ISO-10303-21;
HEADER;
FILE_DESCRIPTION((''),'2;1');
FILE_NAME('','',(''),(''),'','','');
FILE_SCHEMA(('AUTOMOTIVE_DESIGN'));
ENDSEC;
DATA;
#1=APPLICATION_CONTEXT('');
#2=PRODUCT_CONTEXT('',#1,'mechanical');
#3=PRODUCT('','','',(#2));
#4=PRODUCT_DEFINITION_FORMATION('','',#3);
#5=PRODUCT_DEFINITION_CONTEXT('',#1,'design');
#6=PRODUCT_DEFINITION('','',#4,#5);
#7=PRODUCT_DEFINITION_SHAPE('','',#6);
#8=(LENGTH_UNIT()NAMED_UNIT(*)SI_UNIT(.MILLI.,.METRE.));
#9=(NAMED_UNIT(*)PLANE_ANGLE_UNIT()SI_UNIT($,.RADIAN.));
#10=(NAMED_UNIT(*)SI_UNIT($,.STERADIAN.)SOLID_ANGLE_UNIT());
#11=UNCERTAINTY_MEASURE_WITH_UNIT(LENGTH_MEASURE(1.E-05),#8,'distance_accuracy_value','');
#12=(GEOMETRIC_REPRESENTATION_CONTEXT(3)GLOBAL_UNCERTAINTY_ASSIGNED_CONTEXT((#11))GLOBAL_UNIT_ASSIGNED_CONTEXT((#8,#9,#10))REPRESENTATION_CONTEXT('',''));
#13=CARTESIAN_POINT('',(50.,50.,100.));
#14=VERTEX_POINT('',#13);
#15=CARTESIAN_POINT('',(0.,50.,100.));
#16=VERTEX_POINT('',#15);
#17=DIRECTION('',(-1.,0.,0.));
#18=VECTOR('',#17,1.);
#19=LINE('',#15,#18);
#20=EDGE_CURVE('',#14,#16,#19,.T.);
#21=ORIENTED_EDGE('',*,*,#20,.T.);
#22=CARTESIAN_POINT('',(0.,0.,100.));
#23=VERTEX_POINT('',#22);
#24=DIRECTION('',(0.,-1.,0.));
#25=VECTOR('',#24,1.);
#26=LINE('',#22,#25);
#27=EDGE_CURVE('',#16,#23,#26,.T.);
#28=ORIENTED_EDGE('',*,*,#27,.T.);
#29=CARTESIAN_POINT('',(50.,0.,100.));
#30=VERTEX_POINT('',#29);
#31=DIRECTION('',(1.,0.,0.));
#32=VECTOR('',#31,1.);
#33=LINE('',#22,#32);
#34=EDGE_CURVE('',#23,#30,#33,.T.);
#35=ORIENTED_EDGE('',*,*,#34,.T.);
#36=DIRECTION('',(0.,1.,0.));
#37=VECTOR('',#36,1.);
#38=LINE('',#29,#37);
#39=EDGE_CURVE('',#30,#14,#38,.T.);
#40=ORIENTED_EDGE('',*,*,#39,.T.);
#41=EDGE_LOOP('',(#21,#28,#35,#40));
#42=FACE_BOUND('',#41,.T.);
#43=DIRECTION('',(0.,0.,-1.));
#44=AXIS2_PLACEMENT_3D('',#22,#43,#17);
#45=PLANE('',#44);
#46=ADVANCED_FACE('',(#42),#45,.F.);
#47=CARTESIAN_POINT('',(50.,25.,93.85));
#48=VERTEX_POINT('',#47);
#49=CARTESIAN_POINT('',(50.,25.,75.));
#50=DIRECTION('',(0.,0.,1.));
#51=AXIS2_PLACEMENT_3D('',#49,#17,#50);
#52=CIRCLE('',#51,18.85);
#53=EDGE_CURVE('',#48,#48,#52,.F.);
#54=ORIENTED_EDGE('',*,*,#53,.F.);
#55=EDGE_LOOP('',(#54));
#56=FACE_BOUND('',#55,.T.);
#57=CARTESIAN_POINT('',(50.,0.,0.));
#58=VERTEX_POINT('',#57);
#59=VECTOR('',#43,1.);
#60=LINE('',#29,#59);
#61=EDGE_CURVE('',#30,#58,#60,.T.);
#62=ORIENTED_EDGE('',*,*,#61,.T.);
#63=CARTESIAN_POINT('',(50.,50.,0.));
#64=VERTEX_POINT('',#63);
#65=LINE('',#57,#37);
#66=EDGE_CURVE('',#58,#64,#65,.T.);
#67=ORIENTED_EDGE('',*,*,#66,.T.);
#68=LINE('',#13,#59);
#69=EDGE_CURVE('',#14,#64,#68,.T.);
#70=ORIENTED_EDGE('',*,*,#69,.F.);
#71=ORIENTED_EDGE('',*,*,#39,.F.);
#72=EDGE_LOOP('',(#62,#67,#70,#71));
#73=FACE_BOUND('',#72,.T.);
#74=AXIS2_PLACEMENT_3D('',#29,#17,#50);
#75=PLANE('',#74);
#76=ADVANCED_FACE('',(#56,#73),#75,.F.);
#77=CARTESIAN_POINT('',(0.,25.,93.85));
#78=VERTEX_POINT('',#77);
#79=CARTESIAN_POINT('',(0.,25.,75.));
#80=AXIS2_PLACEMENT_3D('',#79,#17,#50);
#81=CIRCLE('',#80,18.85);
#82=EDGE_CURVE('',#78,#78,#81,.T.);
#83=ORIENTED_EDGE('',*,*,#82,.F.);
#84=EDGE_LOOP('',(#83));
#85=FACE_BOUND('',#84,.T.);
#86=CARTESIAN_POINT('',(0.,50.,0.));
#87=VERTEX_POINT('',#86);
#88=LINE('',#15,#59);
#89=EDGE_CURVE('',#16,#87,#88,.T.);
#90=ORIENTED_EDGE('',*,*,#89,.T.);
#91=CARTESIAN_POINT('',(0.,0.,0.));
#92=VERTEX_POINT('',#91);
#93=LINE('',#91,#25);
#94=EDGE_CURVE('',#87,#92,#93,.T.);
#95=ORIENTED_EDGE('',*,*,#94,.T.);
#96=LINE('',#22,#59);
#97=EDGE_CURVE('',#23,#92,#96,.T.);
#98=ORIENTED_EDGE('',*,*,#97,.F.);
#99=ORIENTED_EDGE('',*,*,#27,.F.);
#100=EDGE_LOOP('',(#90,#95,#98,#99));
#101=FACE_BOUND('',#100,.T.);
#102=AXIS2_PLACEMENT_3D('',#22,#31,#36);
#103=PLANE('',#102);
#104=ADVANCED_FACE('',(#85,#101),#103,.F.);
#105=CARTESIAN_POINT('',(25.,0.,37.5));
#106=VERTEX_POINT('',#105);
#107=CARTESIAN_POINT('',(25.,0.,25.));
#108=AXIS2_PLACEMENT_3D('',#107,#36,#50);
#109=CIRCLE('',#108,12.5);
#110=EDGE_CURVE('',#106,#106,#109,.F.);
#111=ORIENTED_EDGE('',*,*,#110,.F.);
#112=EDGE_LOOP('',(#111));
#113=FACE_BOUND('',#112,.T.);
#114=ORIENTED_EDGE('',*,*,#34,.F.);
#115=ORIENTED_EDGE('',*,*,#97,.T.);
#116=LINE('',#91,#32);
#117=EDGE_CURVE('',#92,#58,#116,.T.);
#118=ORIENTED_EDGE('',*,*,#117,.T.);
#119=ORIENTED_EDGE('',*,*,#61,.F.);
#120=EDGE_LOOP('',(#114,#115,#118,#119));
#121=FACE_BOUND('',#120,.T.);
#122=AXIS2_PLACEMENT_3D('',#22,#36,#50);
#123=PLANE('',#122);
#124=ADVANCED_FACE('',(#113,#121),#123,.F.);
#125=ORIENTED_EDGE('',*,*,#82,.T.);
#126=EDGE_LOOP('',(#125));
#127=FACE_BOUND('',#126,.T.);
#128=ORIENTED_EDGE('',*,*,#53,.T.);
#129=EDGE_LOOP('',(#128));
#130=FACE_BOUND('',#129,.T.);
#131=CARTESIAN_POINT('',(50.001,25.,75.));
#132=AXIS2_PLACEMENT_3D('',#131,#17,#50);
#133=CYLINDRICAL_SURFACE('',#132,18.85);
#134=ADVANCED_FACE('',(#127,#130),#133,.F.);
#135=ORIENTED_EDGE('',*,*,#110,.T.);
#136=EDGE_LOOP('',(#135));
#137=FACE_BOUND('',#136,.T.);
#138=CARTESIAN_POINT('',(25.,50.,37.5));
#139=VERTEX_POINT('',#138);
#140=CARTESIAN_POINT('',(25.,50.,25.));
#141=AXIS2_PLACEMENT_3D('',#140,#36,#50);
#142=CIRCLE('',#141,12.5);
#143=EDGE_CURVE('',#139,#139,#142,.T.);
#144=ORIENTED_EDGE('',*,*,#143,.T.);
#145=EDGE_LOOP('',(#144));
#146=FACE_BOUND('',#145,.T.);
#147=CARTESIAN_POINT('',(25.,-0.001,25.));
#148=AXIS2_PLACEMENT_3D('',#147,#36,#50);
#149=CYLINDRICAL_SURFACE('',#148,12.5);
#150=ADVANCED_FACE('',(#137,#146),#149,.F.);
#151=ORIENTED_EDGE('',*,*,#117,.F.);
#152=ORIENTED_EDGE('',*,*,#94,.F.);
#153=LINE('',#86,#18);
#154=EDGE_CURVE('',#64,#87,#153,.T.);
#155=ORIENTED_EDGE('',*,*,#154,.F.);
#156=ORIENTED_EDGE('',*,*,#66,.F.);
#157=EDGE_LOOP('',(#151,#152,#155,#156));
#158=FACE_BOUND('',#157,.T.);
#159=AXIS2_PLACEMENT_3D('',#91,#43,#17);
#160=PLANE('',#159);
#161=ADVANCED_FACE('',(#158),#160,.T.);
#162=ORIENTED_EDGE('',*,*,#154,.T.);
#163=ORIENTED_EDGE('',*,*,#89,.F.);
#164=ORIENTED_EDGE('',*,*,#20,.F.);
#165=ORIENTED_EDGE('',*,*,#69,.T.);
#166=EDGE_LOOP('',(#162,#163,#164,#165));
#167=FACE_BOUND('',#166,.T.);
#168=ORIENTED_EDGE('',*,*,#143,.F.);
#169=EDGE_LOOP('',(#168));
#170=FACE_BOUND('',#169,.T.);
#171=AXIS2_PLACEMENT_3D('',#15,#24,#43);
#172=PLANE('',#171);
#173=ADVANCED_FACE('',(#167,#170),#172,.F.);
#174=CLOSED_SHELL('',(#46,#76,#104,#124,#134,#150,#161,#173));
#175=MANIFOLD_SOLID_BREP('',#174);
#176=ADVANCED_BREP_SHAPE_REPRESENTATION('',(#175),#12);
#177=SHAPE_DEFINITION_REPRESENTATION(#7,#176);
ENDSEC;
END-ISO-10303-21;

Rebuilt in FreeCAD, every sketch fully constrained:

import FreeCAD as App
import Part
import Sketcher

V = App.Vector

doc = App.newDocument("Part")
params = doc.addObject("Spreadsheet::Sheet", "Params")
for row, (alias, value) in enumerate([
    ("sketch1_width", "50 mm"),
    ("pad1_length", "100 mm"),
    ("sketch2_diameter", "25 mm"),
    ("sketch3_diameter", "37.7 mm"),
], start=1):
    params.set(f"A{row}", alias)
    params.set(f"B{row}", "=" + value)
    params.setAlias(f"B{row}", alias)

body = doc.addObject("PartDesign::Body", "Body")

# Sketch on XY plane
sketch1 = body.newObject("Sketcher::SketchObject", "Sketch")
sketch1.AttachmentSupport = (doc.getObject("XY_Plane"), [""])
sketch1.MapMode = "FlatFace"
sketch1.addGeometry([
    Part.LineSegment(V(0, 50, 0), V(0, 0, 0)),
    Part.LineSegment(V(0, 0, 0), V(50, 0, 0)),
    Part.LineSegment(V(50, 0, 0), V(50, 50, 0)),
    Part.LineSegment(V(50, 50, 0), V(0, 50, 0)),
], False)
sketch1.addConstraint([
    Sketcher.Constraint("Coincident", 0, 2, 1, 1),
    Sketcher.Constraint("Coincident", 1, 2, 2, 1),
    Sketcher.Constraint("Coincident", 2, 2, 3, 1),
    Sketcher.Constraint("Coincident", 3, 2, 0, 1),
    Sketcher.Constraint("Vertical", 0),
    Sketcher.Constraint("Horizontal", 1),
    Sketcher.Constraint("Vertical", 2),
    Sketcher.Constraint("Horizontal", 3),
    Sketcher.Constraint("Coincident", 0, 2, -1, 1),
    Sketcher.Constraint("Equal", 3, 0),
    Sketcher.Constraint("DistanceX", 1, 1, 1, 2, 50.0),
])
sketch1.setExpression("Constraints[10]", "Params.sketch1_width")
pad1 = body.newObject("PartDesign::Pad", "Pad")
pad1.Profile = sketch1
pad1.setExpression("Length", "Params.pad1_length")

# Sketch on XZ plane
sketch2 = body.newObject("Sketcher::SketchObject", "Sketch001")
sketch2.AttachmentSupport = (doc.getObject("XZ_Plane"), [""])
sketch2.MapMode = "FlatFace"
sketch2.AttachmentOffset = App.Placement(V(0, 0, -50), App.Rotation())
sketch2.addGeometry(Part.Circle(V(25, 25, 0), V(0, 0, 1), 12.5), False)
sketch2.addConstraint([
    Sketcher.Constraint("Diameter", 0, 25.0),
    Sketcher.Constraint("DistanceX", -1, 1, 0, 3, 25.0),
    Sketcher.Constraint("DistanceY", -1, 1, 0, 3, 25.0),
])
sketch2.setExpression("Constraints[0]", "Params.sketch2_diameter")
pocket1 = body.newObject("PartDesign::Pocket", "Pocket")
pocket1.Profile = sketch2
pocket1.Type = "UpToFirst"
pocket1.Reversed = True

# Sketch on YZ plane
sketch3 = body.newObject("Sketcher::SketchObject", "Sketch002")
sketch3.AttachmentSupport = (doc.getObject("YZ_Plane"), [""])
sketch3.MapMode = "FlatFace"
sketch3.addGeometry(Part.Circle(V(25, 75, 0), V(0, 0, 1), 18.85), False)
sketch3.addConstraint([
    Sketcher.Constraint("Diameter", 0, 37.7),
    Sketcher.Constraint("DistanceX", -1, 1, 0, 3, 25.0),
    Sketcher.Constraint("DistanceY", -1, 1, 0, 3, 75.0),
])
sketch3.setExpression("Constraints[0]", "Params.sketch3_diameter")
pocket2 = body.newObject("PartDesign::Pocket", "Pocket001")
pocket2.Profile = sketch3
pocket2.Type = "UpToFirst"
pocket2.Reversed = True

doc.recompute()
